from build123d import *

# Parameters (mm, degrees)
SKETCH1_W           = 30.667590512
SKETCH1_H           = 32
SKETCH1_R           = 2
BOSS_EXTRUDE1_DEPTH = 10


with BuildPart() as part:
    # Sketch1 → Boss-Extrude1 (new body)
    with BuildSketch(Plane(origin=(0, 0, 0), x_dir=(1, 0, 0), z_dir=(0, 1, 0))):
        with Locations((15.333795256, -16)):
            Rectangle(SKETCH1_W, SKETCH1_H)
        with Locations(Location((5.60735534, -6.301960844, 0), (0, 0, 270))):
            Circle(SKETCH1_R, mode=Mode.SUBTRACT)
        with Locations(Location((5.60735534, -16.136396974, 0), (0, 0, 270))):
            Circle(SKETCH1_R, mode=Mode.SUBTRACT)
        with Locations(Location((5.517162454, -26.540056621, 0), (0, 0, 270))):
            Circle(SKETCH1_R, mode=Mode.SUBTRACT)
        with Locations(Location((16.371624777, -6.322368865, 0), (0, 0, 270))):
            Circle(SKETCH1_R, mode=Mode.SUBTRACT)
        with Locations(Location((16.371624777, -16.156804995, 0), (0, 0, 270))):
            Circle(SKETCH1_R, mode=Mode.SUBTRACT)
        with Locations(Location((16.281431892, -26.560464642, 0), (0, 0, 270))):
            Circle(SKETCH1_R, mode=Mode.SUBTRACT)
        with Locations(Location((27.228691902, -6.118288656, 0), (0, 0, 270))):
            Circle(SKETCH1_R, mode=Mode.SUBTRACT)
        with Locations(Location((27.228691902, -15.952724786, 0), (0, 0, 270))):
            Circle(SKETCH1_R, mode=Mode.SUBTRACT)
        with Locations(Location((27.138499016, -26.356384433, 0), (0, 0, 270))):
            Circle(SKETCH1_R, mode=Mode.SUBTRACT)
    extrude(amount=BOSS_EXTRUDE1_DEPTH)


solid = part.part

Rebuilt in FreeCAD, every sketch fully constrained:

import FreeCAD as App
import Part
import Sketcher
Q = App.Units.Quantity


def add_polygon(sketch, points):
    """Adds a closed chain of lines whose ends are joined by coincident constraints."""
    first, n = sketch.GeometryCount, len(points)
    for a, b in zip(points, points[1:] + points[:1]):
        sketch.addGeometry(Part.LineSegment(App.Vector(*a, 0), App.Vector(*b, 0)), False)
    for i in range(n):
        sketch.addConstraint(Sketcher.Constraint("Coincident", first + i, 2, first + (i + 1) % n, 1))

doc = App.newDocument("Part")
body = doc.addObject("PartDesign::Body", "Body")

# Sketch on XZ plane
sketch1 = doc.addObject("Sketcher::SketchObject", "Sketch")
body.addObject(sketch1)
sketch1.AttachmentSupport = (doc.XZ_Plane, [""])
sketch1.MapMode = "FlatFace"
add_polygon(sketch1, [(0, 0), (0, 32), (30.667591, 32), (30.667591, 0)])  # lines 0-3
sketch1.addGeometry(Part.Circle(App.Vector(5.517162, 26.540057, 0), App.Vector(0, 0, 1), 2), False)  # 4
sketch1.addGeometry(Part.Circle(App.Vector(16.281432, 26.560465, 0), App.Vector(0, 0, 1), 2), False)  # 5
sketch1.addGeometry(Part.Circle(App.Vector(27.138499, 26.356384, 0), App.Vector(0, 0, 1), 2), False)  # 6
sketch1.addGeometry(Part.Circle(App.Vector(5.607355, 16.136397, 0), App.Vector(0, 0, 1), 2), False)  # 7
sketch1.addGeometry(Part.Circle(App.Vector(16.371625, 16.156805, 0), App.Vector(0, 0, 1), 2), False)  # 8
sketch1.addGeometry(Part.Circle(App.Vector(5.607355, 6.301961, 0), App.Vector(0, 0, 1), 2), False)  # 9
sketch1.addGeometry(Part.Circle(App.Vector(16.371625, 6.322369, 0), App.Vector(0, 0, 1), 2), False)  # 10
sketch1.addGeometry(Part.Circle(App.Vector(27.228692, 15.952725, 0), App.Vector(0, 0, 1), 2), False)  # 11
sketch1.addGeometry(Part.Circle(App.Vector(27.228692, 6.118289, 0), App.Vector(0, 0, 1), 2), False)  # 12
sketch1.addConstraint(Sketcher.Constraint("Vertical", 0))
sketch1.addConstraint(Sketcher.Constraint("Horizontal", 1))
sketch1.addConstraint(Sketcher.Constraint("Vertical", 2))
sketch1.addConstraint(Sketcher.Constraint("Horizontal", 3))
sketch1.addConstraint(Sketcher.Constraint("Coincident", 3, 2, -1, 1))
sketch1.addConstraint(Sketcher.Constraint("Equal", 4, 5))
sketch1.addConstraint(Sketcher.Constraint("Equal", 5, 6))
sketch1.addConstraint(Sketcher.Constraint("Equal", 6, 7))
sketch1.addConstraint(Sketcher.Constraint("Equal", 7, 8))
sketch1.addConstraint(Sketcher.Constraint("Equal", 8, 9))
sketch1.addConstraint(Sketcher.Constraint("Equal", 9, 10))
sketch1.addConstraint(Sketcher.Constraint("Equal", 10, 11))
sketch1.addConstraint(Sketcher.Constraint("Equal", 11, 12))
sketch1.addConstraint(Sketcher.Constraint("Vertical", 7, 3, 9, 3))
sketch1.addConstraint(Sketcher.Constraint("Vertical", 8, 3, 10, 3))
sketch1.addConstraint(Sketcher.Constraint("Vertical", 11, 3, 12, 3))
sketch1.addConstraint(Sketcher.Constraint("Diameter", 4, Q("4 mm")))
sketch1.addConstraint(Sketcher.Constraint("DistanceY", 0, 1, 0, 2, Q("32 mm")))
sketch1.addConstraint(Sketcher.Constraint("DistanceX", 1, 1, 1, 2, Q("30.667591 mm")))
sketch1.addConstraint(Sketcher.Constraint("DistanceX", -1, 1, 6, 3, Q("27.138499 mm")))
sketch1.addConstraint(Sketcher.Constraint("DistanceX", 11, 3, 1, 2, Q("3.438899 mm")))
sketch1.addConstraint(Sketcher.Constraint("DistanceX", -1, 1, 5, 3, Q("16.281432 mm")))
sketch1.addConstraint(Sketcher.Constraint("DistanceY", -1, 1, 9, 3, Q("6.301961 mm")))
sketch1.addConstraint(Sketcher.Constraint("DistanceY", -1, 1, 10, 3, Q("6.322369 mm")))
sketch1.addConstraint(Sketcher.Constraint("DistanceY", -1, 1, 12, 3, Q("6.118289 mm")))
sketch1.addConstraint(Sketcher.Constraint("DistanceX", 4, 3, 5, 3, Q("10.764269 mm")))
sketch1.addConstraint(Sketcher.Constraint("DistanceY", 4, 3, 5, 3, Q("0.020408 mm")))
sketch1.addConstraint(Sketcher.Constraint("DistanceY", 6, 3, 5, 3, Q("0.20408 mm")))
sketch1.addConstraint(Sketcher.Constraint("DistanceY", 7, 3, 4, 3, Q("10.40366 mm")))
sketch1.addConstraint(Sketcher.Constraint("DistanceY", 8, 3, 5, 3, Q("10.40366 mm")))
sketch1.addConstraint(Sketcher.Constraint("DistanceX", 7, 3, 8, 3, Q("10.764269 mm")))
sketch1.addConstraint(Sketcher.Constraint("DistanceY", 10, 3, 7, 3, Q("9.814028 mm")))
sketch1.addConstraint(Sketcher.Constraint("DistanceY", 11, 3, 6, 3, Q("10.40366 mm")))
sketch1.addConstraint(Sketcher.Constraint("DistanceX", -1, 1, 7, 3, Q("5.607355 mm")))
pad1 = doc.addObject("PartDesign::Pad", "Pad")
body.addObject(pad1)
pad1.Profile = sketch1
pad1.Length = 10
pad1.Reversed = True

doc.recompute()
